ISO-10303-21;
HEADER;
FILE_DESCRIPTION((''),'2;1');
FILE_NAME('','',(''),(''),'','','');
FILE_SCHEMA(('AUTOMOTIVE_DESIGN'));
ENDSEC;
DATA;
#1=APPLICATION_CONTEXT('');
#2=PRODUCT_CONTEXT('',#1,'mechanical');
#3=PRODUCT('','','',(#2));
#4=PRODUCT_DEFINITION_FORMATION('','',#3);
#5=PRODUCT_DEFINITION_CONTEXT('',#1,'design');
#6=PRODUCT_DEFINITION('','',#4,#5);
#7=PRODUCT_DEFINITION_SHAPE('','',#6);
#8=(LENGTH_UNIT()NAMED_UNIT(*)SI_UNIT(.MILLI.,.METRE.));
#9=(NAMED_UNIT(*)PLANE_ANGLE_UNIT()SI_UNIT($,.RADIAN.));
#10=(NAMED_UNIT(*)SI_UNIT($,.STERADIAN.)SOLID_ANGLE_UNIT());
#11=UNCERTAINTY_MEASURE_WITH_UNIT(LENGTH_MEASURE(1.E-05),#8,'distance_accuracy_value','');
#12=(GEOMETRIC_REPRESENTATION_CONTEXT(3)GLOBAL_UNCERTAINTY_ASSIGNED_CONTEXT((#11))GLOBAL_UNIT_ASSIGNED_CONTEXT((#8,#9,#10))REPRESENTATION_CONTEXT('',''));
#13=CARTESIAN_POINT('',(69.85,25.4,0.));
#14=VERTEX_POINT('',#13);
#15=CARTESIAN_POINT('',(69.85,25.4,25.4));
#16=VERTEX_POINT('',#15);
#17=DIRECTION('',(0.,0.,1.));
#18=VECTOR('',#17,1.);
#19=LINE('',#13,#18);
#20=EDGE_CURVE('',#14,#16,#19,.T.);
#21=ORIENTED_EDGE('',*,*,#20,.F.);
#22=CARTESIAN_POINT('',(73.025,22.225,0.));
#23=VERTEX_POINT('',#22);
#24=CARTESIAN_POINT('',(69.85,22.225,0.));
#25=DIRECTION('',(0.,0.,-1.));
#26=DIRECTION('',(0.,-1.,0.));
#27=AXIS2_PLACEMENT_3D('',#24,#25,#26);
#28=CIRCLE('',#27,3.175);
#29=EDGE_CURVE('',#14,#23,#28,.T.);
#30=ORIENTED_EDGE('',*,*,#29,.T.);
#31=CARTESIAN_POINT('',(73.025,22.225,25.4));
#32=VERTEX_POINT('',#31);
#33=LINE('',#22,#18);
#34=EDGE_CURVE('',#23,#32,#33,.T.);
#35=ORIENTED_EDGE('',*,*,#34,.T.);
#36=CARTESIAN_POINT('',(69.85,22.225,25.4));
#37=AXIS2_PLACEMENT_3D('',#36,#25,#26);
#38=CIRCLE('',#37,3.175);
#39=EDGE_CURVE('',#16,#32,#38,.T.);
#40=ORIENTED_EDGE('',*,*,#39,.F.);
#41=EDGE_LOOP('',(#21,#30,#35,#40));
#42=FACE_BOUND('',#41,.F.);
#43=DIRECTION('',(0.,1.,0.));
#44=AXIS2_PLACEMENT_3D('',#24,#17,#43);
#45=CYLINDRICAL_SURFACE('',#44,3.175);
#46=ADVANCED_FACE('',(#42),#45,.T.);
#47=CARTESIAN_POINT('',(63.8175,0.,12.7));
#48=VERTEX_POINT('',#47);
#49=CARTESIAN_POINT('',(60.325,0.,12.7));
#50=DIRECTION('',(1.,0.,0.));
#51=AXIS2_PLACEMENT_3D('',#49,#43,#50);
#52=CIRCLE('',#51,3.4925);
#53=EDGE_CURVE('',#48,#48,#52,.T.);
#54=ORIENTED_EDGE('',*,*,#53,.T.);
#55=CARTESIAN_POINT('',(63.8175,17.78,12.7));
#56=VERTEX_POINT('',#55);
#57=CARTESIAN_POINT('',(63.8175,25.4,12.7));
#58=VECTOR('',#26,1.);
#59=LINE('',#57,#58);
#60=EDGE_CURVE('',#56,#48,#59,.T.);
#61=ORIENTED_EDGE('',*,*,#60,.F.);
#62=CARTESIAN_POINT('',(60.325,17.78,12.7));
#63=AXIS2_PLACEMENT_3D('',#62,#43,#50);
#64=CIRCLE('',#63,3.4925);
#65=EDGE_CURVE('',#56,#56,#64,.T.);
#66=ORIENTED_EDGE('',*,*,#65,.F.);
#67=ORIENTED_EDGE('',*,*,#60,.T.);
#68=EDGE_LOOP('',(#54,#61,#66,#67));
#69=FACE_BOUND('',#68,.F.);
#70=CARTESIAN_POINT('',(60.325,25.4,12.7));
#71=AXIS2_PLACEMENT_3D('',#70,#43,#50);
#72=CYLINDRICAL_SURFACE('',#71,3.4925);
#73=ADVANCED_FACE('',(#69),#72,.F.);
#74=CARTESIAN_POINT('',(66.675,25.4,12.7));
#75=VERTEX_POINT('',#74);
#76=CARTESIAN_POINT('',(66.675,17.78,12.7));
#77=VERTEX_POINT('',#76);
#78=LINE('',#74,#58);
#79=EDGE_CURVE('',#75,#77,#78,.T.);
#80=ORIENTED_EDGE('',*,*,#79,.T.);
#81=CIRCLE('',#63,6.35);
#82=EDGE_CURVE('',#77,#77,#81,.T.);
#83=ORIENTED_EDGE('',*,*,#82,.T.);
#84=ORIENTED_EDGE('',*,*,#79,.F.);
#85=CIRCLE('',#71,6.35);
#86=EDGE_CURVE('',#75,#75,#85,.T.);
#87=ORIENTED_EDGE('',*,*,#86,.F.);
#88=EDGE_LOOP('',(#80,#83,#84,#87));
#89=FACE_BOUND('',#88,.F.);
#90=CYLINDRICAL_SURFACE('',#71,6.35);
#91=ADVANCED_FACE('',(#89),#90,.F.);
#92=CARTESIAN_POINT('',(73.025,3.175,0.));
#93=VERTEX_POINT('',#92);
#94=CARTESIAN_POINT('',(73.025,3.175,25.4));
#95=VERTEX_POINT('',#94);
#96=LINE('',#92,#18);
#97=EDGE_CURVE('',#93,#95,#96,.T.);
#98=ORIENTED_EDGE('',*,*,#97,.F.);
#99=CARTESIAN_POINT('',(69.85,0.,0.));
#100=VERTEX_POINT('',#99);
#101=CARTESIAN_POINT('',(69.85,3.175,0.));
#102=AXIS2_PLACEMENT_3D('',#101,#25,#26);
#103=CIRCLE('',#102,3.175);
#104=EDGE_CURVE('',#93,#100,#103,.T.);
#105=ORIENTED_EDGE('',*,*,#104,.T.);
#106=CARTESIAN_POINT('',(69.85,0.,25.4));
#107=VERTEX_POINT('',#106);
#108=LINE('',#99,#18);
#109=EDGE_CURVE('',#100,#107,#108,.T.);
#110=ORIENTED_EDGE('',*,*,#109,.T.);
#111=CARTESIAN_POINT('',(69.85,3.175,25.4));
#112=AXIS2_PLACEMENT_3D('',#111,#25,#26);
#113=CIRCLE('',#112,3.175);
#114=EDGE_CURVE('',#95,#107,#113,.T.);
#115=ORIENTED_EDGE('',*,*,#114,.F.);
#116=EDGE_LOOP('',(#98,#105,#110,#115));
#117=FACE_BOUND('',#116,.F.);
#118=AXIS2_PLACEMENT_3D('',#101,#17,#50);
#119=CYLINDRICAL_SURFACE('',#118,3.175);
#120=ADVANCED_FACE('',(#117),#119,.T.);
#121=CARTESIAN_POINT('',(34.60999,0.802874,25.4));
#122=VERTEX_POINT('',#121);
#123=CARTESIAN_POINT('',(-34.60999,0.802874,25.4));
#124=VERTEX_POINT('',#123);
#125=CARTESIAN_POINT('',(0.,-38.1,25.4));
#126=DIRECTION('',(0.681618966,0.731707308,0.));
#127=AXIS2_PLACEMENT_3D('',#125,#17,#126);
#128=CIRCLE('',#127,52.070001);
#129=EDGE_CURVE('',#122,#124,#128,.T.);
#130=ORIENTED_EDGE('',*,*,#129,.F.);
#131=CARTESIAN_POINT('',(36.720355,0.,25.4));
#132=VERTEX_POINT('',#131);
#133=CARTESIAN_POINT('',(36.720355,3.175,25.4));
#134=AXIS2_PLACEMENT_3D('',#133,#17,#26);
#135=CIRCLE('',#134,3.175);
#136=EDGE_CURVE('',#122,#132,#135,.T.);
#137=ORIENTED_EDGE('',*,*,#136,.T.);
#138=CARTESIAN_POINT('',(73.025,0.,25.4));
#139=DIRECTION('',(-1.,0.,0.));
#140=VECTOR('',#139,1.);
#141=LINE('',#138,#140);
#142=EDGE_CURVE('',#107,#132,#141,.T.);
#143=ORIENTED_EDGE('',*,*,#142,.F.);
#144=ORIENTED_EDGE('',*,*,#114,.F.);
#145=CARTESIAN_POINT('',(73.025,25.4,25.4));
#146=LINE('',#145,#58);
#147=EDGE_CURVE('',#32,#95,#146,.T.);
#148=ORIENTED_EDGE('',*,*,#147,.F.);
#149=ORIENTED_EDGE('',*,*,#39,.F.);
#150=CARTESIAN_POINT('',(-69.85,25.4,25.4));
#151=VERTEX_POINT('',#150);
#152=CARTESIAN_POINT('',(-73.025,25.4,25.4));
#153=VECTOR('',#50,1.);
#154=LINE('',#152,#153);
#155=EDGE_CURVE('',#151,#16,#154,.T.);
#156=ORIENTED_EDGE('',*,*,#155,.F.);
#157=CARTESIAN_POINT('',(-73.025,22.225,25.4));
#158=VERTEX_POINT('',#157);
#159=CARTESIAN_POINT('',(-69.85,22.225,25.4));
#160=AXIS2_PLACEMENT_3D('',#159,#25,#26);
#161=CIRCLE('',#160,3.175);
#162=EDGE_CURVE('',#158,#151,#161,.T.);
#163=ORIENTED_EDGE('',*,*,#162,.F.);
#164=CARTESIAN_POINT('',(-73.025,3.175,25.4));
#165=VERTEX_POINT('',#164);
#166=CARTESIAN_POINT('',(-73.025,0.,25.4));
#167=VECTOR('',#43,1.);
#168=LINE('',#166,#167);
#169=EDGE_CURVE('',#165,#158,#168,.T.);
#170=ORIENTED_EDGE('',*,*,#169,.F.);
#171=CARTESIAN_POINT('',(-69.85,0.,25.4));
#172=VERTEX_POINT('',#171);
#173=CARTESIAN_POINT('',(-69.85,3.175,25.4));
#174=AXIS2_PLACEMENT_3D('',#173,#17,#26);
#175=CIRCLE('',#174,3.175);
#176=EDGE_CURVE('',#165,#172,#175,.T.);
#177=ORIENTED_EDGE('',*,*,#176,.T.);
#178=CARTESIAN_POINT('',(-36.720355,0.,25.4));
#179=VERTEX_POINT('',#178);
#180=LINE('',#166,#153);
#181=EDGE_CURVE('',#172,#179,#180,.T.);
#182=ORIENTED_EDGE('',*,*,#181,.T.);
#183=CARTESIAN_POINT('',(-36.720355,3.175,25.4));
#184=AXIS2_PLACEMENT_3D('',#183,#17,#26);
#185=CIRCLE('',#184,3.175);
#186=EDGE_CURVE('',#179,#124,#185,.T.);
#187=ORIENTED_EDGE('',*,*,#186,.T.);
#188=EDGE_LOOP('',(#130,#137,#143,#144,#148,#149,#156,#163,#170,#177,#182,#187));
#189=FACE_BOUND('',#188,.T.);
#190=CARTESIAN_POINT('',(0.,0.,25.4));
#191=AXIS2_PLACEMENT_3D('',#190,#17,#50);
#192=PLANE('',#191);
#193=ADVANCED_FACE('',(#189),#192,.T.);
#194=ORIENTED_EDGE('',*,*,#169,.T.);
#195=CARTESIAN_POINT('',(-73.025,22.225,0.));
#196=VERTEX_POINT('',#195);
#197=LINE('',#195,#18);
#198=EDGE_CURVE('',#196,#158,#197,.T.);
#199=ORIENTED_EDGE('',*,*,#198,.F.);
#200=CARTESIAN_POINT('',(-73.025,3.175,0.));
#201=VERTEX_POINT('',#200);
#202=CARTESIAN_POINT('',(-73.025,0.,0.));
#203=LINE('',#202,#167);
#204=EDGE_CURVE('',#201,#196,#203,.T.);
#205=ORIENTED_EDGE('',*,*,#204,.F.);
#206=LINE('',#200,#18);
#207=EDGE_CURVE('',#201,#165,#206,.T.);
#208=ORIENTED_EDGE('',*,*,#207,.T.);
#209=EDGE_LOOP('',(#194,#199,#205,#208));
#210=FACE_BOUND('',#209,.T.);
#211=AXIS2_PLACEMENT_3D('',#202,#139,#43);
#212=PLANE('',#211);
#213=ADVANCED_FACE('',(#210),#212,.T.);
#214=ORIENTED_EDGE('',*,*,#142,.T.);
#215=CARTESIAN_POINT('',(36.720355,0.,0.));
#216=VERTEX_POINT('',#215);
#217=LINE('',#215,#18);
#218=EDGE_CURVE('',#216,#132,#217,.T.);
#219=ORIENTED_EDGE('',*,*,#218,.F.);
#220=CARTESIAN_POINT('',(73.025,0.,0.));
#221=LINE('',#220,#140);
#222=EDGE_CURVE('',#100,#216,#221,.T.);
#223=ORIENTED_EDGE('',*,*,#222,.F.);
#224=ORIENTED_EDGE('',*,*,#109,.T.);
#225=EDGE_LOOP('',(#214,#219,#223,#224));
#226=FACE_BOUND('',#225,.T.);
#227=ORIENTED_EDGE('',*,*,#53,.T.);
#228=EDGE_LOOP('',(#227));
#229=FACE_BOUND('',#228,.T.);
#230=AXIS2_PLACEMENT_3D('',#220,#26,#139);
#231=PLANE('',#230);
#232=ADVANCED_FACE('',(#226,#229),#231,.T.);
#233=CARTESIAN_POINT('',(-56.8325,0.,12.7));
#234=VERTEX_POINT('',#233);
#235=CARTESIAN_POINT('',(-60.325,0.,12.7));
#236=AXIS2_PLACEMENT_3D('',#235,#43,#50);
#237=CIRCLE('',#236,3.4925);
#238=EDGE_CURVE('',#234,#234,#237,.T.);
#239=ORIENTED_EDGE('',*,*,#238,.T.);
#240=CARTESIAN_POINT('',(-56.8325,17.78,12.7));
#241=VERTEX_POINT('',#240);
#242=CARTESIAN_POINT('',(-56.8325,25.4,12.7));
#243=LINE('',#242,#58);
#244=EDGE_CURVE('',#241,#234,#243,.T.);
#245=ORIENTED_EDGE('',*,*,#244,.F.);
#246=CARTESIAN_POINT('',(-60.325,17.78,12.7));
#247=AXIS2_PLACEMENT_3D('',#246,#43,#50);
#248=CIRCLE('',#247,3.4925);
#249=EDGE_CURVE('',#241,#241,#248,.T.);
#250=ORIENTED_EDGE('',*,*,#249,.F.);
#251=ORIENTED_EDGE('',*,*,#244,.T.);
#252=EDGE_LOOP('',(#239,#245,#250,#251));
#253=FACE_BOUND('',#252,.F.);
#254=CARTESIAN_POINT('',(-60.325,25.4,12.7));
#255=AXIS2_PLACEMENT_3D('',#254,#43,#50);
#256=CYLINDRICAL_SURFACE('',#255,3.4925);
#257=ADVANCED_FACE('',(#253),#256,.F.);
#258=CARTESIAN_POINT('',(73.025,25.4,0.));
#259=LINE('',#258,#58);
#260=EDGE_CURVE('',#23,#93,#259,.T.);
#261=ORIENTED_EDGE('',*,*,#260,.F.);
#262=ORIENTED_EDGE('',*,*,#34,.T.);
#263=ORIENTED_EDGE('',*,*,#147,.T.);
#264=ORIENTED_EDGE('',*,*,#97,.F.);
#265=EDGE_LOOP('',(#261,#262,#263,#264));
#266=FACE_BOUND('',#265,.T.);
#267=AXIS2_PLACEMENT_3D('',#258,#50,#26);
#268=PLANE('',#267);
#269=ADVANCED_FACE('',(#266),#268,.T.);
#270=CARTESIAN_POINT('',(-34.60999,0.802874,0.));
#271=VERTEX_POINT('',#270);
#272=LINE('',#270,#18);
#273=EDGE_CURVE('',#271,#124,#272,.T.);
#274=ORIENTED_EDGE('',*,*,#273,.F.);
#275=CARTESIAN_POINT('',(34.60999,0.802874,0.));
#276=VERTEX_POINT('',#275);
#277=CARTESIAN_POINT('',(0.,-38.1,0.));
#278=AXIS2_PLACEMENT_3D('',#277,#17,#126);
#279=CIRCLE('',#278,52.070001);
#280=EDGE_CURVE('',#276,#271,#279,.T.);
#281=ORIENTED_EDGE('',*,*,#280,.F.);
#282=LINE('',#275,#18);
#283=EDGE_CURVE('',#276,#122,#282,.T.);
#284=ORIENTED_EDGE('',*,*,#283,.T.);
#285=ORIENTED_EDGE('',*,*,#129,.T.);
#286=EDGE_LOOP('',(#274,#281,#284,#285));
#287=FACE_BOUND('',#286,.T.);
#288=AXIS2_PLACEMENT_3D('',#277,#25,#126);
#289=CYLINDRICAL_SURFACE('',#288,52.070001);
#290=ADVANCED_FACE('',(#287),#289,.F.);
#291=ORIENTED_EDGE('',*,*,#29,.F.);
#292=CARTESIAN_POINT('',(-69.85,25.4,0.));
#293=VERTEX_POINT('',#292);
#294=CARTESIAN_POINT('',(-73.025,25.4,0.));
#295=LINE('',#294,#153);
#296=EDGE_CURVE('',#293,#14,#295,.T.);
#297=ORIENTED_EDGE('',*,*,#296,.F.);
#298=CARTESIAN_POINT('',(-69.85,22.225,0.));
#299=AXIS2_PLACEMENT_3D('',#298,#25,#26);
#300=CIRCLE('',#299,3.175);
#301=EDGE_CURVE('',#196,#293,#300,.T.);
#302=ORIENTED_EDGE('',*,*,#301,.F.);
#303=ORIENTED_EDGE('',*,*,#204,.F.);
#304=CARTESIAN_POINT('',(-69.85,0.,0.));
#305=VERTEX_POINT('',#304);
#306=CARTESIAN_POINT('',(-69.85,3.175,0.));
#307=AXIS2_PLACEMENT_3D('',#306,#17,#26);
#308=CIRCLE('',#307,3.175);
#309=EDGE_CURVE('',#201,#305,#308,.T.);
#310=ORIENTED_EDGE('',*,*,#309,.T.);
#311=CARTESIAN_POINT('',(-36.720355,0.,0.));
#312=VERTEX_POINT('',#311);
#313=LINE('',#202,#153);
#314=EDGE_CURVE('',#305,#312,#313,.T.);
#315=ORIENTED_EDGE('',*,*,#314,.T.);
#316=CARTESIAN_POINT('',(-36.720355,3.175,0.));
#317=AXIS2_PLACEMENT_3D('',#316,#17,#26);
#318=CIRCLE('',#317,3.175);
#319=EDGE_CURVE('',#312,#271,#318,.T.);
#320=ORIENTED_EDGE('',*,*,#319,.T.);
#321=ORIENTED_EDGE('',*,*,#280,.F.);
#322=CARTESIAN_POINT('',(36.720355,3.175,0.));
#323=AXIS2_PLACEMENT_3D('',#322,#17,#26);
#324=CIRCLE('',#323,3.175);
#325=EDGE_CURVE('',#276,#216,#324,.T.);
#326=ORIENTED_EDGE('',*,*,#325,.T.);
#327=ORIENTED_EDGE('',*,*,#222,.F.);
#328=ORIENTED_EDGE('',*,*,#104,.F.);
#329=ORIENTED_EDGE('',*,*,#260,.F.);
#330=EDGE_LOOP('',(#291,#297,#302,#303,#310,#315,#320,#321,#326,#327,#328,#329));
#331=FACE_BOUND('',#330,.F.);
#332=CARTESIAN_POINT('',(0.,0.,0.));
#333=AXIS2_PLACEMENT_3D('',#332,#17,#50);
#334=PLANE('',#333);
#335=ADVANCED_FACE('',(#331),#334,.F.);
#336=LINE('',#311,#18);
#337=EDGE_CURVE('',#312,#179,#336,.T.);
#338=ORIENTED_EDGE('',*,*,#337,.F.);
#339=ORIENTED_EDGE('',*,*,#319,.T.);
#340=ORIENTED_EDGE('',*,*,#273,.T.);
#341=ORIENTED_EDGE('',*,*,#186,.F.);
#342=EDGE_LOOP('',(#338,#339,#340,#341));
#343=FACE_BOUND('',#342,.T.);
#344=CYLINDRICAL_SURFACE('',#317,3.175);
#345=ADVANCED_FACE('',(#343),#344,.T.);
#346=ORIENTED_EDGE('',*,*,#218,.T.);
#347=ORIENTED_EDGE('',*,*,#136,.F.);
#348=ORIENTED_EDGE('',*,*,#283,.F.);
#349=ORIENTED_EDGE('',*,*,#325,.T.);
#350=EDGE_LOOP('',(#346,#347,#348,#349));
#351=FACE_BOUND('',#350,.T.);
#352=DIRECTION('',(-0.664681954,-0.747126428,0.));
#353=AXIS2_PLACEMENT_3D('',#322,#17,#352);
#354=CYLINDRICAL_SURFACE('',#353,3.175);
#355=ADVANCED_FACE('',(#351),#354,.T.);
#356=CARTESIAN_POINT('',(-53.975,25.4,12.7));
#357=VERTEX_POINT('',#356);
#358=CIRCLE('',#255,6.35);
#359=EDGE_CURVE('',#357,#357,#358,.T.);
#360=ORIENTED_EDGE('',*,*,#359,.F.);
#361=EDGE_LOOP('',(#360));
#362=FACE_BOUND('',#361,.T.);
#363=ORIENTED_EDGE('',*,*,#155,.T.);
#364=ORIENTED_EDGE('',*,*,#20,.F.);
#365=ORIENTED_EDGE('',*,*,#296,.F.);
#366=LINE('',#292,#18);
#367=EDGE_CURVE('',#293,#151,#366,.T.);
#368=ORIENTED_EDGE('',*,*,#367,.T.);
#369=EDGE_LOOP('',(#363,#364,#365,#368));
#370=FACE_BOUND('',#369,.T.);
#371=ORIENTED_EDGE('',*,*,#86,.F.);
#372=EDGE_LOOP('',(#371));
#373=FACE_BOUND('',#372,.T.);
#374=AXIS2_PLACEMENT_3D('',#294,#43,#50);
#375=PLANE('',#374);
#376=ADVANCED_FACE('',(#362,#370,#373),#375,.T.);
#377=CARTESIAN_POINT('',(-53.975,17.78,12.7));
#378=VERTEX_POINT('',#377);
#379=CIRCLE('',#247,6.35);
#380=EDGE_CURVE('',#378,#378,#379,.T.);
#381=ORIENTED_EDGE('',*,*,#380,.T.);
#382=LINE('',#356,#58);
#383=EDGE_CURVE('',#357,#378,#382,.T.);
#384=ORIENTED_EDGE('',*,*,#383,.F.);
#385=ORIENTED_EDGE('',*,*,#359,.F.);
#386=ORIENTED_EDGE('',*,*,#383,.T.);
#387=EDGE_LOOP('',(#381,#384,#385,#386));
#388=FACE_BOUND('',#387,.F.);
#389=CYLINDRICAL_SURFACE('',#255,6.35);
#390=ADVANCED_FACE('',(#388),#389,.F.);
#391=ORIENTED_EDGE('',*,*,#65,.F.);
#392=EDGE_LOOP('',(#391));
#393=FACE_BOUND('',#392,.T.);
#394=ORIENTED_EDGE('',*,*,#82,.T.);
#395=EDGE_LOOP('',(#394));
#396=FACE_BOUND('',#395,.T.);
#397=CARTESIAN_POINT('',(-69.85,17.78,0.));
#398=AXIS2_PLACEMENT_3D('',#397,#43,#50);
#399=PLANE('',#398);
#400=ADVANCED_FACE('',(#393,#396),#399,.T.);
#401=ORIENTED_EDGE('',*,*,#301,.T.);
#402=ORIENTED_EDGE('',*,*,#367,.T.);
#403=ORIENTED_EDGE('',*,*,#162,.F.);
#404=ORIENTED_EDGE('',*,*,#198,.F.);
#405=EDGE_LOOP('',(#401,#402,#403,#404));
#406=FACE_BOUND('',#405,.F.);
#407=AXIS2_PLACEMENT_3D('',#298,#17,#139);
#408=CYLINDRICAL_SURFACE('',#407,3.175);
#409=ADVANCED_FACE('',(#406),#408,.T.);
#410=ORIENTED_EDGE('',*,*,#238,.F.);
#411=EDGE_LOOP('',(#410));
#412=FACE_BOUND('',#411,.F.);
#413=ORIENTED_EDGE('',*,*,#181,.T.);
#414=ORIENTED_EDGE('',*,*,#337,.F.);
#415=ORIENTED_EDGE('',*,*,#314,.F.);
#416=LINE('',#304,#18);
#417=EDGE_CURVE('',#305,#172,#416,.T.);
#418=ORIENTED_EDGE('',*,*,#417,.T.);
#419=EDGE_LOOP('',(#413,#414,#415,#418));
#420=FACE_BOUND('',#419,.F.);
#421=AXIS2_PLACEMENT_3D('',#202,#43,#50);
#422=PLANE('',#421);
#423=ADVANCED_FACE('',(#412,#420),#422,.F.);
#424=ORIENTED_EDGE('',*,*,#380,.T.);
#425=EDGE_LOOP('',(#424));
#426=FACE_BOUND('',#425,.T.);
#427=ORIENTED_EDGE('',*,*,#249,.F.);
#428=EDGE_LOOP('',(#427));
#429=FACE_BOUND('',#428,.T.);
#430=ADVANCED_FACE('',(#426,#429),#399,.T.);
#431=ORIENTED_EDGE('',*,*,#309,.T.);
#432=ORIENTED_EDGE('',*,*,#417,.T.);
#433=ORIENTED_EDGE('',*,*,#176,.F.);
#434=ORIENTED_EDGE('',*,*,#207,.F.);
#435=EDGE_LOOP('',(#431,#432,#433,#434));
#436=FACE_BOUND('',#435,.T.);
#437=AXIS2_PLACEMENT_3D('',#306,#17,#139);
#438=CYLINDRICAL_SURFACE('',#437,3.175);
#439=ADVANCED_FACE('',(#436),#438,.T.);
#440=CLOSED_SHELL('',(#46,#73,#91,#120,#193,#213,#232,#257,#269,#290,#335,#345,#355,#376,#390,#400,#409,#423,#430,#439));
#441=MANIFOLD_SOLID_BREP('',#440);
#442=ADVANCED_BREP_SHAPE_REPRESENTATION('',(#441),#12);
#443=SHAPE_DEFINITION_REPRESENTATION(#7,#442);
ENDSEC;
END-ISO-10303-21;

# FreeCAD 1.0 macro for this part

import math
import FreeCAD as App
import Part
import Sketcher
Q = App.Units.Quantity


def edges_at(feature, points):
    """Names of the edges that pass closest to the given points."""
    edges = feature.Shape.Edges
    near = lambda p: min(range(len(edges)), key=lambda i: edges[i].distToShape(Part.Vertex(*p))[0])
    return sorted({f"Edge{near(p) + 1}" for p in points})

doc = App.newDocument("Part")
body = doc.addObject("PartDesign::Body", "Body")

# Sketch on XY plane
sketch1 = doc.addObject("Sketcher::SketchObject", "Sketch")
body.addObject(sketch1)
sketch1.AttachmentSupport = (doc.XY_Plane, [""])
sketch1.MapMode = "FlatFace"
sketch1.addGeometry([
    Part.LineSegment(App.Vector(-73, 25, 0), App.Vector(-73, 0, 0)),  # 0
    Part.LineSegment(App.Vector(-73, 0, 0), App.Vector(-35, 0, 0)),  # 1
    Part.ArcOfCircle(Part.Circle(App.Vector(0, -38, 0), App.Vector(0, 0, 1), 52), math.radians(47), math.radians(133)),  # 2
    Part.LineSegment(App.Vector(35, 0, 0), App.Vector(73, 0, 0)),  # 3
    Part.LineSegment(App.Vector(73, 0, 0), App.Vector(73, 25, 0)),  # 4
    Part.LineSegment(App.Vector(73, 25, 0), App.Vector(-73, 25, 0)),  # 5
], False)
sketch1.addConstraint([
    Sketcher.Constraint("Coincident", 0, 2, 1, 1),
    Sketcher.Constraint("Coincident", 1, 2, 2, 2),
    Sketcher.Constraint("Coincident", 2, 1, 3, 1),
    Sketcher.Constraint("Coincident", 3, 2, 4, 1),
    Sketcher.Constraint("Coincident", 4, 2, 5, 1),
    Sketcher.Constraint("Coincident", 5, 2, 0, 1),
    Sketcher.Constraint("Vertical", 0),
    Sketcher.Constraint("Horizontal", 1),
    Sketcher.Constraint("Horizontal", 3),
    Sketcher.Constraint("Vertical", 4),
    Sketcher.Constraint("Horizontal", 5),
    Sketcher.Constraint("Symmetric", 1, 2, 2, 1, -1, 1),
    Sketcher.Constraint("Symmetric", 0, 2, 3, 2, -2),
    Sketcher.Constraint("DistanceY", 0, 2, 0, 1, Q("1 in")),
    Sketcher.Constraint("Radius", 2, Q("2.05 in")),
    Sketcher.Constraint("DistanceX", 5, 2, 5, 1, Q("5.75 in")),
    Sketcher.Constraint("DistanceY", 2, 3, -1, 1, Q("1.5 in")),
])
pad1 = doc.addObject("PartDesign::Pad", "Pad")
body.addObject(pad1)
pad1.Profile = sketch1
pad1.Length = Q("1 in")

# Sketch on XZ plane
sketch2 = doc.addObject("Sketcher::SketchObject", "Sketch001")
body.addObject(sketch2)
sketch2.AttachmentSupport = (doc.XZ_Plane, [""])
sketch2.MapMode = "FlatFace"
sketch2.AttachmentOffset = App.Placement(App.Vector(0, 0, -1 * 25.4), App.Rotation())
sketch2.addGeometry([
    Part.Circle(App.Vector(-60.3, 12.7, 0), App.Vector(0, 0, 1), 3.5),
    Part.Circle(App.Vector(60.3, 12.7, 0), App.Vector(0, 0, 1), 3.5),
], False)
sketch2.addConstraint([
    Sketcher.Constraint("Equal", 0, 1),
    Sketcher.Constraint("Symmetric", 0, 3, 1, 3, -2),
    Sketcher.Constraint("Diameter", 0, Q("0.275 in")),
    Sketcher.Constraint("DistanceY", -1, 1, 0, 3, Q("0.5 in")),
    Sketcher.Constraint("DistanceX", 0, 3, 1, 3, Q("4.75 in")),
])
pocket1 = doc.addObject("PartDesign::Pocket", "Pocket")
body.addObject(pocket1)
pocket1.Profile = sketch2
pocket1.Type = "ThroughAll"
pocket1.Reversed = True
doc.recompute()

fillet = doc.addObject("PartDesign::Fillet", "Fillet")
body.addObject(fillet)
fillet.Base = (pocket1, edges_at(pocket1, [
    (73.025, 25.4, 12.7),
    (-73.025, 25.4, 12.7),
    (-73.025, 0, 12.7),
    (-35.492, 0, 12.7),
    (35.492, 0, 12.7),
    (73.025, 0, 12.7),
]))
fillet.Radius = Q("0.125 in")

# Sketch on XZ plane
sketch3 = doc.addObject("Sketcher::SketchObject", "Sketch002")
body.addObject(sketch3)
sketch3.AttachmentSupport = (doc.XZ_Plane, [""])
sketch3.MapMode = "FlatFace"
sketch3.AttachmentOffset = App.Placement(App.Vector(0, 0, -1 * 25.4), App.Rotation())
sketch3.addGeometry([
    Part.Circle(App.Vector(-60.3, 12.7, 0), App.Vector(0, 0, 1), 6.3),
    Part.Circle(App.Vector(-60.3, 12.7, 0), App.Vector(0, 0, 1), 3.5),
    Part.Circle(App.Vector(60.3, 12.7, 0), App.Vector(0, 0, 1), 6.3),
], False)
sketch3.addConstraint([
    Sketcher.Constraint("Coincident", 1, 3, 0, 3),
    Sketcher.Constraint("Equal", 0, 2),
    Sketcher.Constraint("Symmetric", 0, 3, 2, 3, -2),
    Sketcher.Constraint("Diameter", 0, Q("0.5 in")),
    Sketcher.Constraint("DistanceY", -1, 1, 0, 3, Q("0.5 in")),
    Sketcher.Constraint("Diameter", 1, Q("0.275 in")),
    Sketcher.Constraint("DistanceX", 0, 3, 2, 3, Q("4.75 in")),
])
pocket2 = doc.addObject("PartDesign::Pocket", "Pocket001")
body.addObject(pocket2)
pocket2.Profile = sketch3
pocket2.Length = Q("0.3 in")
pocket2.Reversed = True

doc.recompute()
